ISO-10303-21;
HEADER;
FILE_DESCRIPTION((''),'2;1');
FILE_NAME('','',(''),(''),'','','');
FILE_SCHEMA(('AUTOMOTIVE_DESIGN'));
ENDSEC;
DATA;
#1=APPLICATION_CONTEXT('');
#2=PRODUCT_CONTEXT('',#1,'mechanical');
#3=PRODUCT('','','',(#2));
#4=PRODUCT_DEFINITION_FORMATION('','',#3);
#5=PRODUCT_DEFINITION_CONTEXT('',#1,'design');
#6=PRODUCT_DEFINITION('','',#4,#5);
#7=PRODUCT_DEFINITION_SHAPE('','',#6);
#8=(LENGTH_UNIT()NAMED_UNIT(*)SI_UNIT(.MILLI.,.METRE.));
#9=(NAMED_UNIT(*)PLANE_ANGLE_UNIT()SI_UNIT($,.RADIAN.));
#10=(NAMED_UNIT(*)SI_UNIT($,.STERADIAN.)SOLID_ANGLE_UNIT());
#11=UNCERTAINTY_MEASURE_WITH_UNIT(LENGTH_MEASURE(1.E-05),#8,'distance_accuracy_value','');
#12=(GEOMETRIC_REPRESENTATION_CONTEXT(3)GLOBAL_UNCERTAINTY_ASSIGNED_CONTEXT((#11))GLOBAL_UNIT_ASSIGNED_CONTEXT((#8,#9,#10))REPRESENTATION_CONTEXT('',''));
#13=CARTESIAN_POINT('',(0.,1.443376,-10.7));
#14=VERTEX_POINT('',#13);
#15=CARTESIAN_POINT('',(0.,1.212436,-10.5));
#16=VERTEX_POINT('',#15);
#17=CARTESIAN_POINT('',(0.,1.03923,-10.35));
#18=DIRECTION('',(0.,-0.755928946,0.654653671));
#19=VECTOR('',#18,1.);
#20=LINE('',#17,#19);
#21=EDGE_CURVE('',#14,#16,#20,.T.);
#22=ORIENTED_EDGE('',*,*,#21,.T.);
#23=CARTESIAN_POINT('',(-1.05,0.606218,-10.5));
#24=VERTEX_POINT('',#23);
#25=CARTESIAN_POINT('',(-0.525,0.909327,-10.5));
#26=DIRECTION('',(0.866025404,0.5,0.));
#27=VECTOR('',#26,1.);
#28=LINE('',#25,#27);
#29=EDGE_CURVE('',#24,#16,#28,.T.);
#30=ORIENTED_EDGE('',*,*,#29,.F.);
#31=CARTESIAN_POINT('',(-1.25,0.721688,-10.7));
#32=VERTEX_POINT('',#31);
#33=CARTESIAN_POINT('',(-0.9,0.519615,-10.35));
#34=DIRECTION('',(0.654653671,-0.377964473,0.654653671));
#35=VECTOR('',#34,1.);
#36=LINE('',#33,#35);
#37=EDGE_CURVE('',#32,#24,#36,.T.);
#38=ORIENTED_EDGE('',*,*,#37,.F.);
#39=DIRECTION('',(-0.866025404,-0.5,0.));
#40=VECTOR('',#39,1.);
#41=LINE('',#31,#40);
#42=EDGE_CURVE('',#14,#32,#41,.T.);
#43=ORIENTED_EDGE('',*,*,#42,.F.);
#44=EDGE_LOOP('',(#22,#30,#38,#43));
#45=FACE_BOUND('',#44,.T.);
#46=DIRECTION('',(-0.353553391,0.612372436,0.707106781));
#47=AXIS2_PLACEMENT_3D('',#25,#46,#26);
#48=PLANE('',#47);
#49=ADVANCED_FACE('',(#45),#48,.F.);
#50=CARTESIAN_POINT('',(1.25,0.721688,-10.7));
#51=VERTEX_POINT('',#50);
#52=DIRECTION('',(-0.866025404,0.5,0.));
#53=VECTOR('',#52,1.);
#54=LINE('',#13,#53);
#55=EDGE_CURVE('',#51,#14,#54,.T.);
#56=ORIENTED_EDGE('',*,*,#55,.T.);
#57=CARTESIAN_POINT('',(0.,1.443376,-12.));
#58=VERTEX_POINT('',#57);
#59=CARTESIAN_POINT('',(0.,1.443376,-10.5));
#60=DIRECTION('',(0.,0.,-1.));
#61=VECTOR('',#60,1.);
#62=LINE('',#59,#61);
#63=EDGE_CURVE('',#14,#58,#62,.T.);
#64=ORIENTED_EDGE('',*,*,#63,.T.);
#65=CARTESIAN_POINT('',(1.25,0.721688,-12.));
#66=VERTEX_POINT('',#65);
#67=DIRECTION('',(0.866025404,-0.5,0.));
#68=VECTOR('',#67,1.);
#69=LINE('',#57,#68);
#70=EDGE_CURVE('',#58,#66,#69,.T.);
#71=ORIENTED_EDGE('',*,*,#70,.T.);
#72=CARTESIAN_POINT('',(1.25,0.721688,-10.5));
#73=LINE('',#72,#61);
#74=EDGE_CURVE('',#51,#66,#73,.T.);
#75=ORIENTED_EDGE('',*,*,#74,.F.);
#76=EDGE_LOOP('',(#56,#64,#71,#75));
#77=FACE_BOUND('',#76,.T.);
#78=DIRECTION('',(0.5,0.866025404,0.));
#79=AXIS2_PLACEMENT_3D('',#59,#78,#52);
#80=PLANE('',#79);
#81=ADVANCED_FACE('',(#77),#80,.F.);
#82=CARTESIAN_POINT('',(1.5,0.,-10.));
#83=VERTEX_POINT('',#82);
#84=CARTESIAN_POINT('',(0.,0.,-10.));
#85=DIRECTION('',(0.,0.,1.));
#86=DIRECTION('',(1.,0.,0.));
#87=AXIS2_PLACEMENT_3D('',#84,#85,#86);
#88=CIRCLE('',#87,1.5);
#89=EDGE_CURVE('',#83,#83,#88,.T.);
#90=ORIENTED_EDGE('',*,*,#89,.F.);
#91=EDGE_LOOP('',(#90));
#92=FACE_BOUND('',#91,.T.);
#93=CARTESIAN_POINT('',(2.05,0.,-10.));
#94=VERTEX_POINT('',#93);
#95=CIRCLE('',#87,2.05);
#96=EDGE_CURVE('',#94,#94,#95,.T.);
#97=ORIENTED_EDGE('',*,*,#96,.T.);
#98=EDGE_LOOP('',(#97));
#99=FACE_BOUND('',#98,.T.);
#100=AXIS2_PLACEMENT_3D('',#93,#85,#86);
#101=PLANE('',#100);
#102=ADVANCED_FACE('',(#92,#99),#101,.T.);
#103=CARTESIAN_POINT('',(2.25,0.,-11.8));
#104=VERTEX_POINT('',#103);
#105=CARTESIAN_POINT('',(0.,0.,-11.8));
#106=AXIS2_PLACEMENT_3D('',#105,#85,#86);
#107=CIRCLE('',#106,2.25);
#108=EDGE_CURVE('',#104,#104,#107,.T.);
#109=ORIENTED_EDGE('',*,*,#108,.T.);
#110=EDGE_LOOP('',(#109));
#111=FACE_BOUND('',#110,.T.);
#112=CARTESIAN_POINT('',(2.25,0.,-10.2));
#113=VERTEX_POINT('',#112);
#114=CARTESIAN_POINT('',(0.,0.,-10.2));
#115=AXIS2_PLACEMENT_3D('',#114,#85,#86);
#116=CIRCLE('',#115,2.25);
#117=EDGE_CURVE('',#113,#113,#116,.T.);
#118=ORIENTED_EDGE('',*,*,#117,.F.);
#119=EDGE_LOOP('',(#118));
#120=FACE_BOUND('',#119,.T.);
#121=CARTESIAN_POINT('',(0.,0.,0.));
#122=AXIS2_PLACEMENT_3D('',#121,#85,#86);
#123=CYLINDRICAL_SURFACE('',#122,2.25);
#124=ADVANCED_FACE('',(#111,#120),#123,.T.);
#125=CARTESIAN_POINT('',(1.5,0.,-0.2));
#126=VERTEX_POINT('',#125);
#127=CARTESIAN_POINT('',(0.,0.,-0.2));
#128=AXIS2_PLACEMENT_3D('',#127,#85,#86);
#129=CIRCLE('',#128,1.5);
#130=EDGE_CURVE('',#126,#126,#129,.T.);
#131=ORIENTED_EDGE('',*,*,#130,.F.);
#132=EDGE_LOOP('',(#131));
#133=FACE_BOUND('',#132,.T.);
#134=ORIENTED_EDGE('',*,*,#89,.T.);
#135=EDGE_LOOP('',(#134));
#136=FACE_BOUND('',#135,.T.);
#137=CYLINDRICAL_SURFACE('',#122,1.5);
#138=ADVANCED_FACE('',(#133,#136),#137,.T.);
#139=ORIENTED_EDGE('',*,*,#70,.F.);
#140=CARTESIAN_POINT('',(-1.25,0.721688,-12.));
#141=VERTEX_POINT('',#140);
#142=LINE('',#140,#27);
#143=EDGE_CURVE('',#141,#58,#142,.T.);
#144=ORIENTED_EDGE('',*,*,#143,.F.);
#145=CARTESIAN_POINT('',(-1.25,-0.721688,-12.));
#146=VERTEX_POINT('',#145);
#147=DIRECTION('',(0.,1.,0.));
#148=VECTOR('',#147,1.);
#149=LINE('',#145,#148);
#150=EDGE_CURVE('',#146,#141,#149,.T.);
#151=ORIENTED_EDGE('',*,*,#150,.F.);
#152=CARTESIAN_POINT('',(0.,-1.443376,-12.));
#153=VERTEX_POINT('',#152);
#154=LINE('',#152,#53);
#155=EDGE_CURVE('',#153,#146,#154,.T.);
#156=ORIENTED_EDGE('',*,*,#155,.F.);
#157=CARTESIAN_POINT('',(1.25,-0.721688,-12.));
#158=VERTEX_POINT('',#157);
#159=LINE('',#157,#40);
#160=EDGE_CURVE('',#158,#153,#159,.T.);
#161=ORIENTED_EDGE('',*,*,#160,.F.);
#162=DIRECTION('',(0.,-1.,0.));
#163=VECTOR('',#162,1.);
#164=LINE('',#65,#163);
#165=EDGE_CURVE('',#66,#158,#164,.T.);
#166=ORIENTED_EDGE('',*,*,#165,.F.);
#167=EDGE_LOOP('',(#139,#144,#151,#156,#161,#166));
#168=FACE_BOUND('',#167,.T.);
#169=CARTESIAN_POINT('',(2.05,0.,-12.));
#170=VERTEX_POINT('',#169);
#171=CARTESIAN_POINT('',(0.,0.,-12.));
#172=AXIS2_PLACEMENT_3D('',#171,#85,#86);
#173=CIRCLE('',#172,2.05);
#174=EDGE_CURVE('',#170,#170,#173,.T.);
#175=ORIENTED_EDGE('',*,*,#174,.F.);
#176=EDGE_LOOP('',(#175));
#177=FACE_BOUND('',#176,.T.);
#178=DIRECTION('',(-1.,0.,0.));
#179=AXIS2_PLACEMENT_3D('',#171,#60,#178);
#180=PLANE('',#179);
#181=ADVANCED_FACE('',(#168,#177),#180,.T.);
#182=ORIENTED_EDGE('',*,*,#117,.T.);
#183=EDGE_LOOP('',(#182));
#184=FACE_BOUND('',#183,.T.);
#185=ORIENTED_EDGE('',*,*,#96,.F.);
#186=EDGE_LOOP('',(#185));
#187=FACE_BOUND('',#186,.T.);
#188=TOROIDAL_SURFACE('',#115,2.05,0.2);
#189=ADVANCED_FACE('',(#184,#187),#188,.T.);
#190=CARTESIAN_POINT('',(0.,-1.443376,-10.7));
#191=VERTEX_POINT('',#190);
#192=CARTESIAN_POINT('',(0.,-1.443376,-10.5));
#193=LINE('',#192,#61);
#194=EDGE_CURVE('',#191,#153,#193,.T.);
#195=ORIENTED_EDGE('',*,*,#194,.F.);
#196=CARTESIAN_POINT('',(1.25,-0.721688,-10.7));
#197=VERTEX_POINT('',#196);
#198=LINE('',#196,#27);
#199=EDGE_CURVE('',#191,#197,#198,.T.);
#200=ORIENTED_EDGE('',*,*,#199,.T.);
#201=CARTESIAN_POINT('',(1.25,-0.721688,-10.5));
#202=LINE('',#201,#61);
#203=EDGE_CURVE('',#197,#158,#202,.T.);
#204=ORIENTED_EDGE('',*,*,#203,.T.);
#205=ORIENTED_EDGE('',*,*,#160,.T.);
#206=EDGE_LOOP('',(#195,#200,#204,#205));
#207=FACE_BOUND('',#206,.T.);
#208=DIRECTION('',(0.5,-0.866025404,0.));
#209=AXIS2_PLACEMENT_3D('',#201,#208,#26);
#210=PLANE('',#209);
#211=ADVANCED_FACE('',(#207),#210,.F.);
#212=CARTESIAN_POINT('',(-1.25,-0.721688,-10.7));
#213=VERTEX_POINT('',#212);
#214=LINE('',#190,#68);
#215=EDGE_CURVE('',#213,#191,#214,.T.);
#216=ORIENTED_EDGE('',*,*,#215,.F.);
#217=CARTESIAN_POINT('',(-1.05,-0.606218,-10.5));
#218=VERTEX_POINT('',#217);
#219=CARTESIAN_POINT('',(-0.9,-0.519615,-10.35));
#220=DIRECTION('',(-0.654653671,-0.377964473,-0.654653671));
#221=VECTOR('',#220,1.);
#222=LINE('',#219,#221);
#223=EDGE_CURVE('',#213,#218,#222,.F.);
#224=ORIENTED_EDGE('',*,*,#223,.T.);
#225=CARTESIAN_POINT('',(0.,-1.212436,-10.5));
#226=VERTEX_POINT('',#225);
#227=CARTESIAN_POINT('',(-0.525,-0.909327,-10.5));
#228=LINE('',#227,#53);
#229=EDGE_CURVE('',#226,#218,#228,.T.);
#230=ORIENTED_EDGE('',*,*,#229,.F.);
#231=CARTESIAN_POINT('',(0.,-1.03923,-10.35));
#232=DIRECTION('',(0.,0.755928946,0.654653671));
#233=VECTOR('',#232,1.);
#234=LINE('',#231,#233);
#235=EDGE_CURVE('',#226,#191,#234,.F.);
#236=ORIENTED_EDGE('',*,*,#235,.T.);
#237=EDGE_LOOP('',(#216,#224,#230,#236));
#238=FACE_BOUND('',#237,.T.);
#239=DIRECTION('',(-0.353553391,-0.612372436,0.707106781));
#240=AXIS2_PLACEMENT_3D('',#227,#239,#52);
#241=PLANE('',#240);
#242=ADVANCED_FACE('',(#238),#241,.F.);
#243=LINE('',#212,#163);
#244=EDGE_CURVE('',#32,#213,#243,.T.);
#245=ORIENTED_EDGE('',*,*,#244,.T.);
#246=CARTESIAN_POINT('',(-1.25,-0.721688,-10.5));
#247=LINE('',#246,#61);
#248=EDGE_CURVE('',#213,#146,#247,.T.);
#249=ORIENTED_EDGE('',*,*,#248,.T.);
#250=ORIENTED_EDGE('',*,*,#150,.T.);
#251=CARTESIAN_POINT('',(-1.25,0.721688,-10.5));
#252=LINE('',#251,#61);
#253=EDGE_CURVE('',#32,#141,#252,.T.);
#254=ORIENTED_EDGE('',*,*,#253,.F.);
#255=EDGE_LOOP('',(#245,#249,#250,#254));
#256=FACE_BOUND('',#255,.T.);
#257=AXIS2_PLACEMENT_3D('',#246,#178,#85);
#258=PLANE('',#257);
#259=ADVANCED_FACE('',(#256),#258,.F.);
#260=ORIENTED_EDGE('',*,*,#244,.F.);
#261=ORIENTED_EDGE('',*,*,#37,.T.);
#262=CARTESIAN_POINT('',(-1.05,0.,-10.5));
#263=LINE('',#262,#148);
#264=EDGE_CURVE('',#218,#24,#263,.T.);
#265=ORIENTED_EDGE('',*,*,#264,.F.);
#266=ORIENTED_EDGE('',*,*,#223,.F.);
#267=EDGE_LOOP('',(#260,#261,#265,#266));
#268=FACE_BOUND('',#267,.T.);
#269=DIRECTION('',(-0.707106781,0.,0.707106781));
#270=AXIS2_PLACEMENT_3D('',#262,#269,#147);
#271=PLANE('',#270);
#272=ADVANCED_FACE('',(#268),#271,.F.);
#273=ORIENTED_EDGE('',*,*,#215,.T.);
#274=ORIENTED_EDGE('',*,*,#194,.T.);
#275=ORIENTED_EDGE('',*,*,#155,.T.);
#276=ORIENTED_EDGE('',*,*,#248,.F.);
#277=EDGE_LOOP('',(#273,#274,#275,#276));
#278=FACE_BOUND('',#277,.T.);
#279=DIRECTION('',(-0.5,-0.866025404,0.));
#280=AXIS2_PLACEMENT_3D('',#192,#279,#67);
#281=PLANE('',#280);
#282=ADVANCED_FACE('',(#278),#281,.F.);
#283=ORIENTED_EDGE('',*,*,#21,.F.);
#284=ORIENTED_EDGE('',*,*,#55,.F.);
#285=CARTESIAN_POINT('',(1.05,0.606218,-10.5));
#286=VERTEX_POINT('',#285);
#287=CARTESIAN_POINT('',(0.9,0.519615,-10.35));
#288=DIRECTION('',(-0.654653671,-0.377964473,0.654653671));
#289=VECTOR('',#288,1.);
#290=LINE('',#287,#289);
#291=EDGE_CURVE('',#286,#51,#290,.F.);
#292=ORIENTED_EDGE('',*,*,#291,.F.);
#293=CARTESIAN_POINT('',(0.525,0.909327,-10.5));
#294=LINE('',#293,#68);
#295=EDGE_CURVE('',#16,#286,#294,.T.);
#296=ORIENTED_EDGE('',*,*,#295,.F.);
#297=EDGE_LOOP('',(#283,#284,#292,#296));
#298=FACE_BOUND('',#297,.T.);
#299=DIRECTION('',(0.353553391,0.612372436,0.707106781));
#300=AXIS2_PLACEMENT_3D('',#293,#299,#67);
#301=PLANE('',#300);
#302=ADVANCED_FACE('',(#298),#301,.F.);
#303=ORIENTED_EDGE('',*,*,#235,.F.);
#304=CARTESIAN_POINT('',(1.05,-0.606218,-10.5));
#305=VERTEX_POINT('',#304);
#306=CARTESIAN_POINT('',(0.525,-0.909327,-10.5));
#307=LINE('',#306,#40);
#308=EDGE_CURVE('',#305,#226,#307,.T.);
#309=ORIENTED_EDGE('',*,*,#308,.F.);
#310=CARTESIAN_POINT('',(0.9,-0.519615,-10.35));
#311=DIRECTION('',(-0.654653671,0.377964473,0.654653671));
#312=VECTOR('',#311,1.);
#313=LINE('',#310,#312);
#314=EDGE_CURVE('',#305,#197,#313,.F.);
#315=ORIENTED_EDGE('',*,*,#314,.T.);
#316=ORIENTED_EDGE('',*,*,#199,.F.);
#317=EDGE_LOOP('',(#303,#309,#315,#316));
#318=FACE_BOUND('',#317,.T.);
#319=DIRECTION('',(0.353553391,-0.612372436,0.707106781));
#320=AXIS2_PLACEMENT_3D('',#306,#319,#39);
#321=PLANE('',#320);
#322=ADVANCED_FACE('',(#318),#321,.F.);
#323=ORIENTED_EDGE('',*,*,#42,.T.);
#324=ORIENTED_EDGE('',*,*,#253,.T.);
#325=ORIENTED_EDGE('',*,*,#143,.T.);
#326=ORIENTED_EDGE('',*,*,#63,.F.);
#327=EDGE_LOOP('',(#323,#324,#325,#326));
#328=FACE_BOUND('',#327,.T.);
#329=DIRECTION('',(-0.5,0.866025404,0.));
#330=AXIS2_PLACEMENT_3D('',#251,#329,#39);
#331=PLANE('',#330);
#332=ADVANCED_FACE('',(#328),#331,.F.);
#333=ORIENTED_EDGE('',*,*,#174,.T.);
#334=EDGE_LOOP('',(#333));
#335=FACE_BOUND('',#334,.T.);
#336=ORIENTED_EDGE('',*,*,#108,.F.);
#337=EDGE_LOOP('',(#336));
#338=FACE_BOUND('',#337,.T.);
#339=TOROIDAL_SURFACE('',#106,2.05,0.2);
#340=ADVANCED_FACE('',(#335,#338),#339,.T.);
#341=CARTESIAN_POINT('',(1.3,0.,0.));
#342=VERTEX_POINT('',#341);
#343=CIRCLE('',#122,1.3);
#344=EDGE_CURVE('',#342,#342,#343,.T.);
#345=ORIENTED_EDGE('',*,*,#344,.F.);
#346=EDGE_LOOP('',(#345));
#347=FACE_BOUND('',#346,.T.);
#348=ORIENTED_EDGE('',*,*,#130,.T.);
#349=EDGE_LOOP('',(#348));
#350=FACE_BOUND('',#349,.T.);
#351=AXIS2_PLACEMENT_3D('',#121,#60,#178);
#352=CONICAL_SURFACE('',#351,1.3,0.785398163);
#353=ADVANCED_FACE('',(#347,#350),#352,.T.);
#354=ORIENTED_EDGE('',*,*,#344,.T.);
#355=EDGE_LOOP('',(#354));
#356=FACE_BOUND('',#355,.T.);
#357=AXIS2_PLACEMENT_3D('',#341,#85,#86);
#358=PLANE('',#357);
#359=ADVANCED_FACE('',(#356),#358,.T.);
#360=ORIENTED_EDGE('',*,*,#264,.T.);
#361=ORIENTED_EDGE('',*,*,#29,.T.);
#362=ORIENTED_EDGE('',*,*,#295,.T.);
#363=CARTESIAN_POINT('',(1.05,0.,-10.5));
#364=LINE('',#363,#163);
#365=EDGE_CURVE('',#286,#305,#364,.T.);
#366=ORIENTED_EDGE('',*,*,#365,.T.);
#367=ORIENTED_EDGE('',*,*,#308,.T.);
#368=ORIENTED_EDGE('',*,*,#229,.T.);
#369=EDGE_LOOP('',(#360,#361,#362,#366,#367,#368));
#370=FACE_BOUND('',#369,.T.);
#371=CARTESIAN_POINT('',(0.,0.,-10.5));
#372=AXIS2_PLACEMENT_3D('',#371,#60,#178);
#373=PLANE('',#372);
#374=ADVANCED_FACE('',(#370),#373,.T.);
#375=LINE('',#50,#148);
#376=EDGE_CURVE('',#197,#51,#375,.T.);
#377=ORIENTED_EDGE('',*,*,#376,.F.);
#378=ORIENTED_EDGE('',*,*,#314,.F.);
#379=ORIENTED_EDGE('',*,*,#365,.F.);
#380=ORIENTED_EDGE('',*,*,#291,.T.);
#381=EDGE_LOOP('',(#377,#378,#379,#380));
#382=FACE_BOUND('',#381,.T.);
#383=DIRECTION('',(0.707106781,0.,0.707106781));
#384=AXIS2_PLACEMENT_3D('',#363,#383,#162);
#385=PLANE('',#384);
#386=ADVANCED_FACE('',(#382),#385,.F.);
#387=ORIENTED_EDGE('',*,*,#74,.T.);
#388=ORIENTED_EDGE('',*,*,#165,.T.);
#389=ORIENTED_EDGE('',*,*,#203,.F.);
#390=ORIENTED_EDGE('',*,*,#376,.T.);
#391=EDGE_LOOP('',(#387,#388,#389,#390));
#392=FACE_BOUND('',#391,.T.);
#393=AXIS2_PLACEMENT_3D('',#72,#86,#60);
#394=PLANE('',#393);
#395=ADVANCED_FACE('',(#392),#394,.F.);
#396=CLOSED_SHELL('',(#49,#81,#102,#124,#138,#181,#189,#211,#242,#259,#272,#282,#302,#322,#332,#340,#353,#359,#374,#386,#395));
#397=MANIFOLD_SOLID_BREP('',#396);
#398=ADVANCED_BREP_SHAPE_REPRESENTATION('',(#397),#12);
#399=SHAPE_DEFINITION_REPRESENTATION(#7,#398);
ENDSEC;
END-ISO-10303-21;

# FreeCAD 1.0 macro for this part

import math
import FreeCAD as App
import Part
import Sketcher
from FreeCAD import Vector
Q = App.Units.Quantity


def edges_at(feature, points):
    """Names of the edges that pass closest to the given points."""
    edges = feature.Shape.Edges
    near = lambda p: min(range(len(edges)), key=lambda i: edges[i].distToShape(Part.Vertex(*p))[0])
    return sorted({f"Edge{near(p) + 1}" for p in points})

doc = App.newDocument("Part")
params = doc.addObject("Spreadsheet::Sheet", "Params")
for row, (alias, value) in enumerate([
    ("sketch1_radius", "0.2 mm"),
    ("sketch1_height", "12 mm"),
    ("sketch1_width", "1.3 mm"),
    ("sketch1_height2", "9.8 mm"),
    ("sketch1_height3", "1.6 mm"),
    ("revolution_angle", "360 deg"),
    ("pocket1_length", "1.5 mm"),
    ("chamfer_size", "0.2 mm"),
], start=1):
    params.set(f"A{row}", alias)
    params.set(f"B{row}", "=" + value)
    params.setAlias(f"B{row}", alias)

body = doc.addObject("PartDesign::Body", "Body")

sketch1 = body.newObject("Sketcher::SketchObject", "Sketch")
sketch1.AttachmentSupport = (doc.getObject("XZ_Plane"), [""])
sketch1.MapMode = "FlatFace"
sketch1.addGeometry(Part.LineSegment(Vector(2.05, -12, 0), Vector(0, -12, 0)), False)
sketch1.addGeometry(Part.LineSegment(Vector(0, -12, 0), Vector(0, 0, 0)), False)
sketch1.addGeometry(Part.LineSegment(Vector(0, 0, 0), Vector(1.3, 0, 0)), False)
sketch1.addGeometry(Part.LineSegment(Vector(1.3, 0, 0), Vector(1.5, -0.2, 0)), False)
sketch1.addGeometry(Part.LineSegment(Vector(1.5, -0.2, 0), Vector(1.5, -10, 0)), False)
sketch1.addGeometry(Part.LineSegment(Vector(1.5, -10, 0), Vector(2.05, -10, 0)), False)
sketch1.addGeometry(Part.ArcOfCircle(Part.Circle(Vector(2.05, -10.2, 0), Vector(0, 0, 1), 0.2), math.radians(0), math.radians(90)), False)
sketch1.addGeometry(Part.LineSegment(Vector(2.25, -10.2, 0), Vector(2.25, -11.8, 0)), False)
sketch1.addGeometry(Part.ArcOfCircle(Part.Circle(Vector(2.05, -11.8, 0), Vector(0, 0, 1), 0.2), math.radians(-90), math.radians(0)), False)
sketch1.addConstraint(Sketcher.Constraint("Coincident", 0, 2, 1, 1))
sketch1.addConstraint(Sketcher.Constraint("Coincident", 1, 2, 2, 1))
sketch1.addConstraint(Sketcher.Constraint("Coincident", 2, 2, 3, 1))
sketch1.addConstraint(Sketcher.Constraint("Coincident", 3, 2, 4, 1))
sketch1.addConstraint(Sketcher.Constraint("Coincident", 4, 2, 5, 1))
sketch1.addConstraint(Sketcher.Constraint("Tangent", 5, 2, 6, 2))
sketch1.addConstraint(Sketcher.Constraint("Tangent", 6, 1, 7, 1))
sketch1.addConstraint(Sketcher.Constraint("Tangent", 7, 2, 8, 2))
sketch1.addConstraint(Sketcher.Constraint("Tangent", 8, 1, 0, 1))
sketch1.addConstraint(Sketcher.Constraint("Horizontal", 0))
sketch1.addConstraint(Sketcher.Constraint("Vertical", 1))
sketch1.addConstraint(Sketcher.Constraint("Horizontal", 2))
sketch1.addConstraint(Sketcher.Constraint("Vertical", 4))
sketch1.addConstraint(Sketcher.Constraint("Horizontal", 5))
sketch1.addConstraint(Sketcher.Constraint("Vertical", 7))
sketch1.addConstraint(Sketcher.Constraint("Coincident", 1, 2, -1, 1))
sketch1.addConstraint(Sketcher.Constraint("Equal", 6, 8))
sketch1.addConstraint(Sketcher.Constraint("Radius", 6, 0.2))
sketch1.addConstraint(Sketcher.Constraint("DistanceY", 1, 1, 1, 2, 12.0))
sketch1.addConstraint(Sketcher.Constraint("Angle", 3, Q("-45 deg")))
sketch1.addConstraint(Sketcher.Constraint("DistanceX", 2, 1, 2, 2, 1.3))
sketch1.addConstraint(Sketcher.Constraint("DistanceY", 4, 2, 4, 1, 9.8))
sketch1.addConstraint(Sketcher.Constraint("DistanceY", 7, 2, 7, 1, 1.6))
sketch1.addConstraint(Sketcher.Constraint("DistanceX", 0, 2, 0, 1, 2.05))
sketch1.setExpression("Constraints[17]", "Params.sketch1_radius")
sketch1.setExpression("Constraints[18]", "Params.sketch1_height")
sketch1.setExpression("Constraints[20]", "Params.sketch1_width")
sketch1.setExpression("Constraints[21]", "Params.sketch1_height2")
sketch1.setExpression("Constraints[22]", "Params.sketch1_height3")
revolution = body.newObject("PartDesign::Revolution", "Revolution")
revolution.Profile = sketch1
revolution.ReferenceAxis = (sketch1, ["V_Axis"])
revolution.setExpression("Angle", "Params.revolution_angle")

sketch2 = body.newObject("Sketcher::SketchObject", "Sketch001")
sketch2.AttachmentSupport = (doc.getObject("XY_Plane"), [""])
sketch2.MapMode = "FlatFace"
sketch2.AttachmentOffset = App.Placement(Vector(0, 0, -12), App.Rotation())
sketch2.addGeometry(Part.LineSegment(Vector(-1.25, 0.721688, 0), Vector(0, 1.443376, 0)), False)
sketch2.addGeometry(Part.LineSegment(Vector(0, 1.443376, 0), Vector(1.25, 0.721688, 0)), False)
sketch2.addGeometry(Part.LineSegment(Vector(1.25, 0.721688, 0), Vector(1.25, -0.721688, 0)), False)
sketch2.addGeometry(Part.LineSegment(Vector(1.25, -0.721688, 0), Vector(0, -1.443376, 0)), False)
sketch2.addGeometry(Part.LineSegment(Vector(0, -1.443376, 0), Vector(-1.25, -0.721688, 0)), False)
sketch2.addGeometry(Part.LineSegment(Vector(-1.25, -0.721688, 0), Vector(-1.25, 0.721688, 0)), False)
sketch2.addConstraint(Sketcher.Constraint("Coincident", 0, 2, 1, 1))
sketch2.addConstraint(Sketcher.Constraint("Coincident", 1, 2, 2, 1))
sketch2.addConstraint(Sketcher.Constraint("Coincident", 2, 2, 3, 1))
sketch2.addConstraint(Sketcher.Constraint("Coincident", 3, 2, 4, 1))
sketch2.addConstraint(Sketcher.Constraint("Coincident", 4, 2, 5, 1))
sketch2.addConstraint(Sketcher.Constraint("Coincident", 5, 2, 0, 1))
sketch2.addConstraint(Sketcher.Constraint("Vertical", 2))
sketch2.addConstraint(Sketcher.Constraint("Vertical", 5))
sketch2.addConstraint(Sketcher.Constraint("Symmetric", 0, 2, 3, 2, -1, 1))
sketch2.addConstraint(Sketcher.Constraint("Symmetric", 1, 2, 4, 2, -1, 1))
sketch2.addConstraint(Sketcher.Constraint("PointOnObject", 0, 2, -2))
sketch2.addConstraint(Sketcher.Constraint("Parallel", 0, 3))
sketch2.addConstraint(Sketcher.Constraint("Horizontal", 2, 2, 4, 2))
sketch2.addConstraint(Sketcher.Constraint("Angle", 0, Q("30 deg")))
sketch2.addConstraint(Sketcher.Constraint("DistanceX", 4, 2, 2, 2, 2.5))
sketch2.addConstraint(Sketcher.Constraint("DistanceY", 2, 2, 2, 1, 1.443376))
pocket1 = body.newObject("PartDesign::Pocket", "Pocket")
pocket1.Profile = sketch2
pocket1.setExpression("Length", "Params.pocket1_length")
pocket1.Reversed = True
doc.recompute()

chamfer = body.newObject("PartDesign::Chamfer", "Chamfer")
chamfer.Base = (pocket1, edges_at(pocket1, [
    (-1.25, 0, -10.5),
    (-0.625, -1.083, -10.5),
    (0.625, -1.083, -10.5),
    (1.25, 0, -10.5),
    (0.625, 1.083, -10.5),
    (-0.625, 1.083, -10.5),
]))
chamfer.setExpression("Size", "Params.chamfer_size")

doc.recompute()
